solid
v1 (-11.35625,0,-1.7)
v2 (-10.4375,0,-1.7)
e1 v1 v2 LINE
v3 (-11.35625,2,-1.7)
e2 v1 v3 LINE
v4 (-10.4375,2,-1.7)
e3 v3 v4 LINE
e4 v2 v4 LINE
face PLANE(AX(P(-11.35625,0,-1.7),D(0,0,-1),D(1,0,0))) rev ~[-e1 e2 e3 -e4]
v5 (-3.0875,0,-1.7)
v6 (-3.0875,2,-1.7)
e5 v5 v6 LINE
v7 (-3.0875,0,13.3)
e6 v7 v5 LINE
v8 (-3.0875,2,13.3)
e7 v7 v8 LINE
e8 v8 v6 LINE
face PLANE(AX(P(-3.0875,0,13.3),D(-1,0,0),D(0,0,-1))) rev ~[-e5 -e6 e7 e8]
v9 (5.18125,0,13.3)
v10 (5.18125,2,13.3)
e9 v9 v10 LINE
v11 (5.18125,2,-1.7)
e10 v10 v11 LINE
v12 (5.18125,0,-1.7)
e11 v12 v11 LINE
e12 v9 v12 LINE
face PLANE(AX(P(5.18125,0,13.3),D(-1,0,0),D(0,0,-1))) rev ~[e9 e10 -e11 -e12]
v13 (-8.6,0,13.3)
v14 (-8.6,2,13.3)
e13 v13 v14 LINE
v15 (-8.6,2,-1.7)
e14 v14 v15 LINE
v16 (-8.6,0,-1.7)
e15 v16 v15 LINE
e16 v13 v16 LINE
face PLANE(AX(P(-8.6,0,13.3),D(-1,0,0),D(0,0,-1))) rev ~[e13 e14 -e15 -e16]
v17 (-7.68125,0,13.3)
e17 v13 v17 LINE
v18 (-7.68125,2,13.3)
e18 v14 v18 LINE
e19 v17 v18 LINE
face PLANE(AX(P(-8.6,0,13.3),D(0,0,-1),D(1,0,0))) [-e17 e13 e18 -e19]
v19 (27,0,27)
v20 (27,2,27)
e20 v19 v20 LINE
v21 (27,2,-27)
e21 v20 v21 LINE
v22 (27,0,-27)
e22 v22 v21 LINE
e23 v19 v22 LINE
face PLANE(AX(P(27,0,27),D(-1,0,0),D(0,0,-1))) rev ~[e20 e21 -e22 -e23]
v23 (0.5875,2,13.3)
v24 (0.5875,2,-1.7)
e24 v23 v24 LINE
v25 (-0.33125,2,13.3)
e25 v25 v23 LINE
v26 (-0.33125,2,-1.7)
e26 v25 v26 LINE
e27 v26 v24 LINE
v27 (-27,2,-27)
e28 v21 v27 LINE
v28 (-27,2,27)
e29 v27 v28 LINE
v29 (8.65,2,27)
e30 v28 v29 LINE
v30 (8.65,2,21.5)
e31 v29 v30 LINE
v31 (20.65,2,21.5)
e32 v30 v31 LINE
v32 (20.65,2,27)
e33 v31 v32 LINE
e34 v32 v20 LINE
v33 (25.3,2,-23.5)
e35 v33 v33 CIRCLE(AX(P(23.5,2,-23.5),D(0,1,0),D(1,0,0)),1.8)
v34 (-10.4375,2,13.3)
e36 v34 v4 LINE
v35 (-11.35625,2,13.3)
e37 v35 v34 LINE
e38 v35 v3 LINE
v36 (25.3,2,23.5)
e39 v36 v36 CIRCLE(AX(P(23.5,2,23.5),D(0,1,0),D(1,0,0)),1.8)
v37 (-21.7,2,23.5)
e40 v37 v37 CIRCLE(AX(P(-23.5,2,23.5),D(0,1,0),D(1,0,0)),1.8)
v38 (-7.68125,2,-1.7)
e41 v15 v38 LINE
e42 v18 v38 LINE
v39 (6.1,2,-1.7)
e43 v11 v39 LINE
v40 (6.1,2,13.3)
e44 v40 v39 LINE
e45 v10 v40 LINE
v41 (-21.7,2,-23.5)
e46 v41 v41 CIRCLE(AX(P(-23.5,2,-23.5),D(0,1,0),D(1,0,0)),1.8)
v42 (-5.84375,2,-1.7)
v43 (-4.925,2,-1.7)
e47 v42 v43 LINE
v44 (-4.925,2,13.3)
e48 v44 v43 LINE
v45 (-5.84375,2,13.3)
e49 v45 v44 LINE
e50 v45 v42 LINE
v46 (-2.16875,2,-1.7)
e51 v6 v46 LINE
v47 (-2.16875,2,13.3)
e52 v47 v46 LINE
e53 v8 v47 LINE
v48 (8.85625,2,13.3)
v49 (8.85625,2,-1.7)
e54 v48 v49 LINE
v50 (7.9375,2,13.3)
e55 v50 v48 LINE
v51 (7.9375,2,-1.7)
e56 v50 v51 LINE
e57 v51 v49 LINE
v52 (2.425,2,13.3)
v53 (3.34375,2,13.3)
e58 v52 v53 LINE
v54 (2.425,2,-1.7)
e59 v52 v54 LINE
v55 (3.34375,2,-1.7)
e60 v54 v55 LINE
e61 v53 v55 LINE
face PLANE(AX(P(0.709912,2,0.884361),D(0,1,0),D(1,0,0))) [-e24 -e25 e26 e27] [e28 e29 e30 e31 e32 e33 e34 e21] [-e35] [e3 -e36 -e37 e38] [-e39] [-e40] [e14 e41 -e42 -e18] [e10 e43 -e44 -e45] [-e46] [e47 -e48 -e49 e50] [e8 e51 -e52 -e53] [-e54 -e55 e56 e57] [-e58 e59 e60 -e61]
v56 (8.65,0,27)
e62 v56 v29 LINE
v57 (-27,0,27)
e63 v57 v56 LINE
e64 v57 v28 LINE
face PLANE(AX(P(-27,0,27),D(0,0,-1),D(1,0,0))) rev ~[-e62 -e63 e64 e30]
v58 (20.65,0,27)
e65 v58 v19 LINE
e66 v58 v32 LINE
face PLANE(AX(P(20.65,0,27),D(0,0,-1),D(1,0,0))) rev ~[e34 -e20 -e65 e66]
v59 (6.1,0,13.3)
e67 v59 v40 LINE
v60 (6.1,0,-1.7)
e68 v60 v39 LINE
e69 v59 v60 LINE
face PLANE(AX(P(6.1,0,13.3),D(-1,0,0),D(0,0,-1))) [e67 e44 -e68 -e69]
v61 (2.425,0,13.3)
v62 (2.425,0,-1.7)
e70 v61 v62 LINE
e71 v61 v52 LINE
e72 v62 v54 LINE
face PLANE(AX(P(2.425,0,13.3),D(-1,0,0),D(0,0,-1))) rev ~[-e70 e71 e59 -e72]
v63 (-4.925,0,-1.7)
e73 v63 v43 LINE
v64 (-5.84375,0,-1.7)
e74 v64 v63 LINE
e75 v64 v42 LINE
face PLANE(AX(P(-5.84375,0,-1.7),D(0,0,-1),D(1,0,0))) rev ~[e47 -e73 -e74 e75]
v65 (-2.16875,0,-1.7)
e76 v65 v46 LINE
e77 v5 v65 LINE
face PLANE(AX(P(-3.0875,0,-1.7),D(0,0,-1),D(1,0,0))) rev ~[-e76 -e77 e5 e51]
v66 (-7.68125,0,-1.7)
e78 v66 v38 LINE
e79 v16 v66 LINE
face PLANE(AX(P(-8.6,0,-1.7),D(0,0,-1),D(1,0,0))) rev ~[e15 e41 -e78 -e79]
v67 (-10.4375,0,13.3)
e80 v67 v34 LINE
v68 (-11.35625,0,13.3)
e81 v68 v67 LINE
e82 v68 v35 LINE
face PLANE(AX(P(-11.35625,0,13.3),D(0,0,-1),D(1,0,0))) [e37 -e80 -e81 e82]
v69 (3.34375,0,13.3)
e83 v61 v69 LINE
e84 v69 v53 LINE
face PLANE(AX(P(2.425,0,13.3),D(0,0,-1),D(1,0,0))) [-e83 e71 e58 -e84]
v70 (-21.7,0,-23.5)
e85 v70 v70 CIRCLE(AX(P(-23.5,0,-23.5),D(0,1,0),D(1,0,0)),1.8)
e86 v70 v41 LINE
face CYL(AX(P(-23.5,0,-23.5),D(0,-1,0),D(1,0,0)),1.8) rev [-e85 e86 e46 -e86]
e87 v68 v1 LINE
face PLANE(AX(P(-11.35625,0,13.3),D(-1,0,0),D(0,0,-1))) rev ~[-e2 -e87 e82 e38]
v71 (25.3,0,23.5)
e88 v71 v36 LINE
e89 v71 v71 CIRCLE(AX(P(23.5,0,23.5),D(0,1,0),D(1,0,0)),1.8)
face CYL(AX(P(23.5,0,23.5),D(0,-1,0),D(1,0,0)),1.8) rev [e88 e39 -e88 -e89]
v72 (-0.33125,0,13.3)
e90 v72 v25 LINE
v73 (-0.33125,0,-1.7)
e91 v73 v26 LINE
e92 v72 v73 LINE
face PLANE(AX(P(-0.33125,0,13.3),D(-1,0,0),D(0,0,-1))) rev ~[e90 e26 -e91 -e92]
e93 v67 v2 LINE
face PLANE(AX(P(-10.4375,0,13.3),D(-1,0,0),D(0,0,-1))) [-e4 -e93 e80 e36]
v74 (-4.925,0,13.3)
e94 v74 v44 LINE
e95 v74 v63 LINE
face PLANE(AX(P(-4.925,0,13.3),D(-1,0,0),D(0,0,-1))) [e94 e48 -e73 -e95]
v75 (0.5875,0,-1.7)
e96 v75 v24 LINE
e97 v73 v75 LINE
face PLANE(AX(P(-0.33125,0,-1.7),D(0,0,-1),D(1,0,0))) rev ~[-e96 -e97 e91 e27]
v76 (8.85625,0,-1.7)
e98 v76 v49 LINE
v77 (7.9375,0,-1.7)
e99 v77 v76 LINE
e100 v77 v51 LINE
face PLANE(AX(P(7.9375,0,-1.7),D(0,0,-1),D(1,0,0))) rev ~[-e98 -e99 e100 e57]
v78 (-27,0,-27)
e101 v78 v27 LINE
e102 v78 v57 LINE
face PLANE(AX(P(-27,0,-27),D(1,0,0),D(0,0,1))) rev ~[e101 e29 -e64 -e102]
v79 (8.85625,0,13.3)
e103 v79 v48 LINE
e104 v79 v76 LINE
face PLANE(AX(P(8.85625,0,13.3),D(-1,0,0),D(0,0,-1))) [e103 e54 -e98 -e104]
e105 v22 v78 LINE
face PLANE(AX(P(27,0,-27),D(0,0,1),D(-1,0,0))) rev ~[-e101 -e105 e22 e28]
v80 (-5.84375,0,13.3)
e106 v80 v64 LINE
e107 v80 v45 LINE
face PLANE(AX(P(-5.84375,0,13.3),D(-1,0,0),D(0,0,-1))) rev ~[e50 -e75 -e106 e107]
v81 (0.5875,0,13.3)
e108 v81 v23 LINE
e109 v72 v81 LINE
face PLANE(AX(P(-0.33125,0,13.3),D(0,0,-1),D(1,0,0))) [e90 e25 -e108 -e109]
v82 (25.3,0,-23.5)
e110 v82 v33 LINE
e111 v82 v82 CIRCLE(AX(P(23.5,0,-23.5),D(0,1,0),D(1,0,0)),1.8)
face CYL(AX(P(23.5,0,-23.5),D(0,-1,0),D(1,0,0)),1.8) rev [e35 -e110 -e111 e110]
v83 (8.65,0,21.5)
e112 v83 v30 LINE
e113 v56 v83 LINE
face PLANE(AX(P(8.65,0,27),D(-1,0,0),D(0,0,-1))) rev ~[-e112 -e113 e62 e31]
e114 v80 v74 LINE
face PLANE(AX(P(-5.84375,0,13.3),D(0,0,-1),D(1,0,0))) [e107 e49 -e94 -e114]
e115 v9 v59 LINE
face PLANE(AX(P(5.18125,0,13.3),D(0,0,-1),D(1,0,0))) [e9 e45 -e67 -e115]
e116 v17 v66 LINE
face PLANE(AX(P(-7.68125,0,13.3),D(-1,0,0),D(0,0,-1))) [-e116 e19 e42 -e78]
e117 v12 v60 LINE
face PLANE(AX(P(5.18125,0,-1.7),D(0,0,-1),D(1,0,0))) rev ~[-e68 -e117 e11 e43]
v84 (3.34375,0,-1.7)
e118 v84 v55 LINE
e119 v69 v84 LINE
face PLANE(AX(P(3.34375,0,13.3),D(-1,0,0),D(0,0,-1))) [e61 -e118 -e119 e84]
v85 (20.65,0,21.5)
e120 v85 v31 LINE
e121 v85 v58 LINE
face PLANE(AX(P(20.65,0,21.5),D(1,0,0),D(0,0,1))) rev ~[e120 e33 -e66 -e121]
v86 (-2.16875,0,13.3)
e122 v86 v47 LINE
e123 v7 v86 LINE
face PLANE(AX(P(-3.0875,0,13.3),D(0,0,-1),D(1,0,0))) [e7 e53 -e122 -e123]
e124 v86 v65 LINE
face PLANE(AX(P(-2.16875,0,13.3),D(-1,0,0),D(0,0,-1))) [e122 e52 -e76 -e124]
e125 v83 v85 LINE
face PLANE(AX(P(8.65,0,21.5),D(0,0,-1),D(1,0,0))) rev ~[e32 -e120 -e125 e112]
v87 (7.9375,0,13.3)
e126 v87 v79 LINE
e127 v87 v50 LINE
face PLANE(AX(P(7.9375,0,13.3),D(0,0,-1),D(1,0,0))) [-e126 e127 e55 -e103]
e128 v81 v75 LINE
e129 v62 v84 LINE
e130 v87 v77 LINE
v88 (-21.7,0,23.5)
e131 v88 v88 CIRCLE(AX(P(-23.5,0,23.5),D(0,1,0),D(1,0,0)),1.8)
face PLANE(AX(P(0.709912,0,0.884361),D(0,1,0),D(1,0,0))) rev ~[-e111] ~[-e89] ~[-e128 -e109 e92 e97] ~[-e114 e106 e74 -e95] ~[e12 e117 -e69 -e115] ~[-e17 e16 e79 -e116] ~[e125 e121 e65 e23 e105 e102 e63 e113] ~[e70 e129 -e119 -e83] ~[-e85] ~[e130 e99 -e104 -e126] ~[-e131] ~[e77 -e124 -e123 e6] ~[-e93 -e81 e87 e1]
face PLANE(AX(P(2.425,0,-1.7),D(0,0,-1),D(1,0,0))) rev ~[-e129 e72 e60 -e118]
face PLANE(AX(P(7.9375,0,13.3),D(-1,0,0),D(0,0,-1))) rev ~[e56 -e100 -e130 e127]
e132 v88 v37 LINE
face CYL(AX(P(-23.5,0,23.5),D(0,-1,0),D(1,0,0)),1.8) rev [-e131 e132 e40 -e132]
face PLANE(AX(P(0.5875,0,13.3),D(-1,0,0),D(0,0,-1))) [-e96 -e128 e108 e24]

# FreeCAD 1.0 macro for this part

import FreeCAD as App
import Part
import Sketcher

V = App.Vector
Q = App.Units.Quantity

doc = App.newDocument("Part")
body = doc.addObject("PartDesign::Body", "Body")

sketch1 = doc.addObject("Sketcher::SketchObject", "Sketch")
body.addObject(sketch1)
sketch1.AttachmentSupport = (doc.XZ_Plane, [""])
sketch1.MapMode = "FlatFace"
sketch1.addGeometry(Part.LineSegment(V(8.65, 21.5, 0), V(20.65, 21.5, 0)), False)
sketch1.addGeometry(Part.LineSegment(V(20.65, 21.5, 0), V(20.65, 27, 0)), False)
sketch1.addGeometry(Part.LineSegment(V(20.65, 27, 0), V(27, 27, 0)), False)
sketch1.addGeometry(Part.LineSegment(V(27, 27, 0), V(27, -27, 0)), False)
sketch1.addGeometry(Part.LineSegment(V(27, -27, 0), V(-27, -27, 0)), False)
sketch1.addGeometry(Part.LineSegment(V(-27, -27, 0), V(-27, 27, 0)), False)
sketch1.addGeometry(Part.LineSegment(V(-27, 27, 0), V(8.65, 27, 0)), False)
sketch1.addGeometry(Part.LineSegment(V(8.65, 27, 0), V(8.65, 21.5, 0)), False)
sketch1.addGeometry(Part.Circle(V(-23.5, 23.5, 0), V(0, 0, 1), 1.8), False)
sketch1.addGeometry(Part.LineSegment(V(-10.4375, 13.3, 0), V(-11.35625, 13.3, 0)), False)
sketch1.addGeometry(Part.LineSegment(V(-11.35625, 13.3, 0), V(-11.35625, -1.7, 0)), False)
sketch1.addGeometry(Part.LineSegment(V(-11.35625, -1.7, 0), V(-10.4375, -1.7, 0)), False)
sketch1.addGeometry(Part.LineSegment(V(-10.4375, -1.7, 0), V(-10.4375, 13.3, 0)), False)
sketch1.addGeometry(Part.LineSegment(V(-7.68125, 13.3, 0), V(-8.6, 13.3, 0)), False)
sketch1.addGeometry(Part.LineSegment(V(-8.6, 13.3, 0), V(-8.6, -1.7, 0)), False)
sketch1.addGeometry(Part.LineSegment(V(-8.6, -1.7, 0), V(-7.68125, -1.7, 0)), False)
sketch1.addGeometry(Part.LineSegment(V(-7.68125, -1.7, 0), V(-7.68125, 13.3, 0)), False)
sketch1.addGeometry(Part.LineSegment(V(-4.925, 13.3, 0), V(-5.84375, 13.3, 0)), False)
sketch1.addGeometry(Part.LineSegment(V(-5.84375, 13.3, 0), V(-5.84375, -1.7, 0)), False)
sketch1.addGeometry(Part.LineSegment(V(-5.84375, -1.7, 0), V(-4.925, -1.7, 0)), False)
sketch1.addGeometry(Part.LineSegment(V(-4.925, -1.7, 0), V(-4.925, 13.3, 0)), False)
sketch1.addGeometry(Part.LineSegment(V(-2.16875, 13.3, 0), V(-3.0875, 13.3, 0)), False)
sketch1.addGeometry(Part.LineSegment(V(-3.0875, 13.3, 0), V(-3.0875, -1.7, 0)), False)
sketch1.addGeometry(Part.LineSegment(V(-3.0875, -1.7, 0), V(-2.16875, -1.7, 0)), False)
sketch1.addGeometry(Part.LineSegment(V(-2.16875, -1.7, 0), V(-2.16875, 13.3, 0)), False)
sketch1.addGeometry(Part.Circle(V(23.5, 23.5, 0), V(0, 0, 1), 1.8), False)
sketch1.addGeometry(Part.LineSegment(V(0.5875, 13.3, 0), V(-0.33125, 13.3, 0)), False)
sketch1.addGeometry(Part.LineSegment(V(-0.33125, 13.3, 0), V(-0.33125, -1.7, 0)), False)
sketch1.addGeometry(Part.LineSegment(V(-0.33125, -1.7, 0), V(0.5875, -1.7, 0)), False)
sketch1.addGeometry(Part.LineSegment(V(0.5875, -1.7, 0), V(0.5875, 13.3, 0)), False)
sketch1.addGeometry(Part.LineSegment(V(3.34375, 13.3, 0), V(2.425, 13.3, 0)), False)
sketch1.addGeometry(Part.LineSegment(V(2.425, 13.3, 0), V(2.425, -1.7, 0)), False)
sketch1.addGeometry(Part.LineSegment(V(2.425, -1.7, 0), V(3.34375, -1.7, 0)), False)
sketch1.addGeometry(Part.LineSegment(V(3.34375, -1.7, 0), V(3.34375, 13.3, 0)), False)
sketch1.addGeometry(Part.LineSegment(V(6.1, 13.3, 0), V(5.18125, 13.3, 0)), False)
sketch1.addGeometry(Part.LineSegment(V(5.18125, 13.3, 0), V(5.18125, -1.7, 0)), False)
sketch1.addGeometry(Part.LineSegment(V(5.18125, -1.7, 0), V(6.1, -1.7, 0)), False)
sketch1.addGeometry(Part.LineSegment(V(6.1, -1.7, 0), V(6.1, 13.3, 0)), False)
sketch1.addGeometry(Part.LineSegment(V(8.85625, 13.3, 0), V(7.9375, 13.3, 0)), False)
sketch1.addGeometry(Part.LineSegment(V(7.9375, 13.3, 0), V(7.9375, -1.7, 0)), False)
sketch1.addGeometry(Part.LineSegment(V(7.9375, -1.7, 0), V(8.85625, -1.7, 0)), False)
sketch1.addGeometry(Part.LineSegment(V(8.85625, -1.7, 0), V(8.85625, 13.3, 0)), False)
sketch1.addGeometry(Part.Circle(V(-23.5, -23.5, 0), V(0, 0, 1), 1.8), False)
sketch1.addGeometry(Part.Circle(V(23.5, -23.5, 0), V(0, 0, 1), 1.8), False)
sketch1.addConstraint(Sketcher.Constraint("Coincident", 0, 2, 1, 1))
sketch1.addConstraint(Sketcher.Constraint("Coincident", 1, 2, 2, 1))
sketch1.addConstraint(Sketcher.Constraint("Coincident", 2, 2, 3, 1))
sketch1.addConstraint(Sketcher.Constraint("Coincident", 3, 2, 4, 1))
sketch1.addConstraint(Sketcher.Constraint("Coincident", 4, 2, 5, 1))
sketch1.addConstraint(Sketcher.Constraint("Coincident", 5, 2, 6, 1))
sketch1.addConstraint(Sketcher.Constraint("Coincident", 6, 2, 7, 1))
sketch1.addConstraint(Sketcher.Constraint("Coincident", 7, 2, 0, 1))
sketch1.addConstraint(Sketcher.Constraint("Coincident", 9, 2, 10, 1))
sketch1.addConstraint(Sketcher.Constraint("Coincident", 10, 2, 11, 1))
sketch1.addConstraint(Sketcher.Constraint("Coincident", 11, 2, 12, 1))
sketch1.addConstraint(Sketcher.Constraint("Coincident", 12, 2, 9, 1))
sketch1.addConstraint(Sketcher.Constraint("Coincident", 13, 2, 14, 1))
sketch1.addConstraint(Sketcher.Constraint("Coincident", 14, 2, 15, 1))
sketch1.addConstraint(Sketcher.Constraint("Coincident", 15, 2, 16, 1))
sketch1.addConstraint(Sketcher.Constraint("Coincident", 16, 2, 13, 1))
sketch1.addConstraint(Sketcher.Constraint("Coincident", 17, 2, 18, 1))
sketch1.addConstraint(Sketcher.Constraint("Coincident", 18, 2, 19, 1))
sketch1.addConstraint(Sketcher.Constraint("Coincident", 19, 2, 20, 1))
sketch1.addConstraint(Sketcher.Constraint("Coincident", 20, 2, 17, 1))
sketch1.addConstraint(Sketcher.Constraint("Coincident", 21, 2, 22, 1))
sketch1.addConstraint(Sketcher.Constraint("Coincident", 22, 2, 23, 1))
sketch1.addConstraint(Sketcher.Constraint("Coincident", 23, 2, 24, 1))
sketch1.addConstraint(Sketcher.Constraint("Coincident", 24, 2, 21, 1))
sketch1.addConstraint(Sketcher.Constraint("Coincident", 26, 2, 27, 1))
sketch1.addConstraint(Sketcher.Constraint("Coincident", 27, 2, 28, 1))
sketch1.addConstraint(Sketcher.Constraint("Coincident", 28, 2, 29, 1))
sketch1.addConstraint(Sketcher.Constraint("Coincident", 29, 2, 26, 1))
sketch1.addConstraint(Sketcher.Constraint("Coincident", 30, 2, 31, 1))
sketch1.addConstraint(Sketcher.Constraint("Coincident", 31, 2, 32, 1))
sketch1.addConstraint(Sketcher.Constraint("Coincident", 32, 2, 33, 1))
sketch1.addConstraint(Sketcher.Constraint("Coincident", 33, 2, 30, 1))
sketch1.addConstraint(Sketcher.Constraint("Coincident", 34, 2, 35, 1))
sketch1.addConstraint(Sketcher.Constraint("Coincident", 35, 2, 36, 1))
sketch1.addConstraint(Sketcher.Constraint("Coincident", 36, 2, 37, 1))
sketch1.addConstraint(Sketcher.Constraint("Coincident", 37, 2, 34, 1))
sketch1.addConstraint(Sketcher.Constraint("Coincident", 38, 2, 39, 1))
sketch1.addConstraint(Sketcher.Constraint("Coincident", 39, 2, 40, 1))
sketch1.addConstraint(Sketcher.Constraint("Coincident", 40, 2, 41, 1))
sketch1.addConstraint(Sketcher.Constraint("Coincident", 41, 2, 38, 1))
sketch1.addConstraint(Sketcher.Constraint("Horizontal", 0))
sketch1.addConstraint(Sketcher.Constraint("Vertical", 1))
sketch1.addConstraint(Sketcher.Constraint("Horizontal", 2))
sketch1.addConstraint(Sketcher.Constraint("Vertical", 3))
sketch1.addConstraint(Sketcher.Constraint("Horizontal", 4))
sketch1.addConstraint(Sketcher.Constraint("Vertical", 5))
sketch1.addConstraint(Sketcher.Constraint("Horizontal", 6))
sketch1.addConstraint(Sketcher.Constraint("Vertical", 7))
sketch1.addConstraint(Sketcher.Constraint("Horizontal", 9))
sketch1.addConstraint(Sketcher.Constraint("Vertical", 10))
sketch1.addConstraint(Sketcher.Constraint("Horizontal", 11))
sketch1.addConstraint(Sketcher.Constraint("Vertical", 12))
sketch1.addConstraint(Sketcher.Constraint("Horizontal", 13))
sketch1.addConstraint(Sketcher.Constraint("Vertical", 14))
sketch1.addConstraint(Sketcher.Constraint("Horizontal", 15))
sketch1.addConstraint(Sketcher.Constraint("Vertical", 16))
sketch1.addConstraint(Sketcher.Constraint("Horizontal", 17))
sketch1.addConstraint(Sketcher.Constraint("Vertical", 18))
sketch1.addConstraint(Sketcher.Constraint("Horizontal", 19))
sketch1.addConstraint(Sketcher.Constraint("Vertical", 20))
sketch1.addConstraint(Sketcher.Constraint("Horizontal", 21))
sketch1.addConstraint(Sketcher.Constraint("Vertical", 22))
sketch1.addConstraint(Sketcher.Constraint("Horizontal", 23))
sketch1.addConstraint(Sketcher.Constraint("Vertical", 24))
sketch1.addConstraint(Sketcher.Constraint("Horizontal", 26))
sketch1.addConstraint(Sketcher.Constraint("Vertical", 27))
sketch1.addConstraint(Sketcher.Constraint("Horizontal", 28))
sketch1.addConstraint(Sketcher.Constraint("Vertical", 29))
sketch1.addConstraint(Sketcher.Constraint("Horizontal", 30))
sketch1.addConstraint(Sketcher.Constraint("Vertical", 31))
sketch1.addConstraint(Sketcher.Constraint("Horizontal", 32))
sketch1.addConstraint(Sketcher.Constraint("Vertical", 33))
sketch1.addConstraint(Sketcher.Constraint("Horizontal", 34))
sketch1.addConstraint(Sketcher.Constraint("Vertical", 35))
sketch1.addConstraint(Sketcher.Constraint("Horizontal", 36))
sketch1.addConstraint(Sketcher.Constraint("Vertical", 37))
sketch1.addConstraint(Sketcher.Constraint("Horizontal", 38))
sketch1.addConstraint(Sketcher.Constraint("Vertical", 39))
sketch1.addConstraint(Sketcher.Constraint("Horizontal", 40))
sketch1.addConstraint(Sketcher.Constraint("Vertical", 41))
sketch1.addConstraint(Sketcher.Constraint("Equal", 8, 25))
sketch1.addConstraint(Sketcher.Constraint("Equal", 25, 42))
sketch1.addConstraint(Sketcher.Constraint("Equal", 42, 43))
sketch1.addConstraint(Sketcher.Constraint("Symmetric", 25, 3, 42, 3, -1, 1))
sketch1.addConstraint(Sketcher.Constraint("Symmetric", 8, 3, 43, 3, -1, 1))
sketch1.addConstraint(Sketcher.Constraint("Symmetric", 2, 2, 4, 2, -1, 1))
sketch1.addConstraint(Sketcher.Constraint("Symmetric", 8, 3, 25, 3, -2))
sketch1.addConstraint(Sketcher.Constraint("Horizontal", 2, 2, 5, 2))
sketch1.addConstraint(Sketcher.Constraint("Horizontal", 12, 2, 13, 2))
sketch1.addConstraint(Sketcher.Constraint("Horizontal", 11, 2, 14, 2))
sketch1.addConstraint(Sketcher.Constraint("Horizontal", 16, 2, 17, 2))
sketch1.addConstraint(Sketcher.Constraint("Horizontal", 15, 2, 18, 2))
sketch1.addConstraint(Sketcher.Constraint("Horizontal", 20, 2, 21, 2))
sketch1.addConstraint(Sketcher.Constraint("Horizontal", 19, 2, 22, 2))
sketch1.addConstraint(Sketcher.Constraint("Horizontal", 24, 2, 26, 2))
sketch1.addConstraint(Sketcher.Constraint("Horizontal", 23, 2, 27, 2))
sketch1.addConstraint(Sketcher.Constraint("Horizontal", 29, 2, 30, 2))
sketch1.addConstraint(Sketcher.Constraint("Horizontal", 28, 2, 31, 2))
sketch1.addConstraint(Sketcher.Constraint("Horizontal", 33, 2, 34, 2))
sketch1.addConstraint(Sketcher.Constraint("Horizontal", 32, 2, 35, 2))
sketch1.addConstraint(Sketcher.Constraint("Horizontal", 37, 2, 38, 2))
sketch1.addConstraint(Sketcher.Constraint("Horizontal", 36, 2, 39, 2))
sketch1.addConstraint(Sketcher.Constraint("Equal", 11, 13))
sketch1.addConstraint(Sketcher.Constraint("Equal", 15, 17))
sketch1.addConstraint(Sketcher.Constraint("Equal", 19, 21))
sketch1.addConstraint(Sketcher.Constraint("Equal", 23, 26))
sketch1.addConstraint(Sketcher.Constraint("Equal", 28, 30))
sketch1.addConstraint(Sketcher.Constraint("Equal", 32, 34))
sketch1.addConstraint(Sketcher.Constraint("Equal", 36, 38))
sketch1.addConstraint(Sketcher.Constraint("Equal", 4, 3))
sketch1.addConstraint(Sketcher.Constraint("Diameter", 8, Q("3.6 mm")))
sketch1.addConstraint(Sketcher.Constraint("DistanceX", 0, 1, 0, 2, Q("12 mm")))
sketch1.addConstraint(Sketcher.Constraint("DistanceX", 4, 2, 4, 1, Q("54 mm")))
sketch1.addConstraint(Sketcher.Constraint("DistanceY", 10, 2, 10, 1, Q("15 mm")))
sketch1.addConstraint(Sketcher.Constraint("DistanceY", 1, 1, 1, 2, Q("5.5 mm")))
sketch1.addConstraint(Sketcher.Constraint("DistanceX", 8, 3, 25, 3, Q("47 mm")))
sketch1.addConstraint(Sketcher.Constraint("DistanceY", 42, 3, 8, 3, Q("47 mm")))
sketch1.addConstraint(Sketcher.Constraint("DistanceX", 2, 1, 2, 2, Q("6.35 mm")))
sketch1.addConstraint(Sketcher.Constraint("DistanceY", -1, 1, 9, 2, Q("13.3 mm")))
sketch1.addConstraint(Sketcher.Constraint("DistanceX", 13, 2, -1, 1, Q("8.6 mm")))
sketch1.addConstraint(Sketcher.Constraint("DistanceX", -1, 1, 36, 2, Q("6.1 mm")))
sketch1.addConstraint(Sketcher.Constraint("DistanceX", 12, 2, 21, 2, Q("7.35 mm")))
sketch1.addConstraint(Sketcher.Constraint("DistanceX", 16, 2, 26, 2, Q("7.35 mm")))
sketch1.addConstraint(Sketcher.Constraint("DistanceX", 20, 2, 30, 2, Q("7.35 mm")))
sketch1.addConstraint(Sketcher.Constraint("DistanceX", 24, 2, 34, 2, Q("7.35 mm")))
sketch1.addConstraint(Sketcher.Constraint("DistanceX", 29, 2, 38, 2, Q("7.35 mm")))
sketch1.addConstraint(Sketcher.Constraint("DistanceX", 19, 2, -1, 1, Q("4.925 mm")))
sketch1.addConstraint(Sketcher.Constraint("DistanceX", 10, 2, 15, 2, Q("3.675 mm")))
pad1 = doc.addObject("PartDesign::Pad", "Pad")
body.addObject(pad1)
pad1.Profile = sketch1
pad1.Length = 2
pad1.Reversed = True

doc.recompute()
